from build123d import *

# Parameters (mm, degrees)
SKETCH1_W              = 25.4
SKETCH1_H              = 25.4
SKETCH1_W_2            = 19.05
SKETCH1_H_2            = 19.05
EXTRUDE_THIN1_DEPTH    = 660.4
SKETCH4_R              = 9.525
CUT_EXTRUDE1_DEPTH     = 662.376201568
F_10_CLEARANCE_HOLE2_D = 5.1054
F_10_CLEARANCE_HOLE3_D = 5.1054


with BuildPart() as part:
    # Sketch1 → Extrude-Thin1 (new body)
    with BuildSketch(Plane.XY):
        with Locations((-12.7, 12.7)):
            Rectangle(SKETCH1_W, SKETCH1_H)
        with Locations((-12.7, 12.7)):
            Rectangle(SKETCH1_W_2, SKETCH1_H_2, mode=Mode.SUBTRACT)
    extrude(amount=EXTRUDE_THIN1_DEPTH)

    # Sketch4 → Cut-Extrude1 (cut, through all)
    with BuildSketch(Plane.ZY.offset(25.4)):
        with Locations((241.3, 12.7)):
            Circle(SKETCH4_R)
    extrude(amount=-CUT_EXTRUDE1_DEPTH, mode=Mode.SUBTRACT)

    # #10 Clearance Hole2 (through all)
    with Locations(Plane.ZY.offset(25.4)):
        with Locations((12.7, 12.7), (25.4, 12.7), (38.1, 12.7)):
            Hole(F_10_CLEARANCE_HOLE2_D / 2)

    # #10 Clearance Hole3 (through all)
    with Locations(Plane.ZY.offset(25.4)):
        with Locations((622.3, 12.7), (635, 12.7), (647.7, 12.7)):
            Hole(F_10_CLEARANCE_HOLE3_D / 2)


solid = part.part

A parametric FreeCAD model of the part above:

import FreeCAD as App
import Part
import Sketcher
from FreeCAD import Vector
Q = App.Units.Quantity

doc = App.newDocument("Part")
body = doc.addObject("PartDesign::Body", "Body")

# Sketch on XY plane
sketch1 = body.newObject("Sketcher::SketchObject", "Sketch")
sketch1.AttachmentSupport = (doc.getObject("XY_Plane"), [""])
sketch1.MapMode = "FlatFace"
sketch1.addGeometry([
    Part.LineSegment(Vector(-25.4, 25.4, 0), Vector(-25.4, 0, 0)),  # 0
    Part.LineSegment(Vector(-25.4, 0, 0), Vector(0, 0, 0)),  # 1
    Part.LineSegment(Vector(0, 0, 0), Vector(0, 25.4, 0)),  # 2
    Part.LineSegment(Vector(0, 25.4, 0), Vector(-25.4, 25.4, 0)),  # 3
    Part.LineSegment(Vector(-3.175, 3.175, 0), Vector(-22.225, 3.175, 0)),  # 4
    Part.LineSegment(Vector(-22.225, 3.175, 0), Vector(-22.225, 22.225, 0)),  # 5
    Part.LineSegment(Vector(-22.225, 22.225, 0), Vector(-3.175, 22.225, 0)),  # 6
    Part.LineSegment(Vector(-3.175, 22.225, 0), Vector(-3.175, 3.175, 0)),  # 7
], False)
sketch1.addConstraint([
    Sketcher.Constraint("Coincident", 0, 2, 1, 1),
    Sketcher.Constraint("Coincident", 1, 2, 2, 1),
    Sketcher.Constraint("Coincident", 2, 2, 3, 1),
    Sketcher.Constraint("Coincident", 3, 2, 0, 1),
    Sketcher.Constraint("Coincident", 4, 2, 5, 1),
    Sketcher.Constraint("Coincident", 5, 2, 6, 1),
    Sketcher.Constraint("Coincident", 6, 2, 7, 1),
    Sketcher.Constraint("Coincident", 7, 2, 4, 1),
    Sketcher.Constraint("Vertical", 0),
    Sketcher.Constraint("Horizontal", 1),
    Sketcher.Constraint("Vertical", 2),
    Sketcher.Constraint("Horizontal", 3),
    Sketcher.Constraint("Horizontal", 4),
    Sketcher.Constraint("Vertical", 5),
    Sketcher.Constraint("Horizontal", 6),
    Sketcher.Constraint("Vertical", 7),
    Sketcher.Constraint("Coincident", 1, 2, -1, 1),
    Sketcher.Constraint("Equal", 3, 0),
    Sketcher.Constraint("Equal", 6, 5),
    Sketcher.Constraint("DistanceX", 1, 1, 1, 2, Q("1 in")),
    Sketcher.Constraint("DistanceX", 4, 2, 4, 1, Q("0.75 in")),
    Sketcher.Constraint("DistanceX", 4, 2, -1, 1, Q("0.875 in")),
    Sketcher.Constraint("DistanceY", -1, 1, 4, 2, Q("0.125 in")),
])
pad1 = body.newObject("PartDesign::Pad", "Pad")
pad1.Profile = sketch1
pad1.Length = Q("26 in")

# Sketch on YZ plane
sketch2 = body.newObject("Sketcher::SketchObject", "Sketch001")
sketch2.AttachmentSupport = (doc.getObject("YZ_Plane"), [""])
sketch2.MapMode = "FlatFace"
sketch2.AttachmentOffset = App.Placement(Vector(0, 0, -1 * 25.4), App.Rotation())
sketch2.addGeometry(Part.Circle(Vector(12.7, 241.3, 0), Vector(0, 0, 1), 9.525), False)
sketch2.addConstraint([
    Sketcher.Constraint("Diameter", 0, Q("0.75 in")),
    Sketcher.Constraint("DistanceX", -1, 1, 0, 3, Q("0.5 in")),
    Sketcher.Constraint("DistanceY", -1, 1, 0, 3, Q("9.5 in")),
])
pocket1 = body.newObject("PartDesign::Pocket", "Pocket")
pocket1.Profile = sketch2
pocket1.Type = "ThroughAll"
pocket1.Reversed = True

# Sketch on YZ plane
sketch3 = body.newObject("Sketcher::SketchObject", "Sketch002")
sketch3.AttachmentSupport = (doc.getObject("YZ_Plane"), [""])
sketch3.MapMode = "FlatFace"
sketch3.AttachmentOffset = App.Placement(Vector(0, 0, -1 * 25.4), App.Rotation())
sketch3.addGeometry([
    Part.Circle(Vector(12.7, 12.7, 0), Vector(0, 0, 1), 2.5527),
    Part.Circle(Vector(12.7, 25.4, 0), Vector(0, 0, 1), 2.5527),
    Part.Circle(Vector(12.7, 38.1, 0), Vector(0, 0, 1), 2.5527),
], False)
sketch3.addConstraint([
    Sketcher.Constraint("Equal", 0, 1),
    Sketcher.Constraint("Equal", 1, 2),
    Sketcher.Constraint("Vertical", 0, 3, 1, 3),
    Sketcher.Constraint("Vertical", 1, 3, 2, 3),
    Sketcher.Constraint("Diameter", 0, Q("0.201 in")),
    Sketcher.Constraint("DistanceY", -1, 1, 1, 3, Q("1 in")),
    Sketcher.Constraint("DistanceY", 0, 3, 2, 3, Q("1 in")),
    Sketcher.Constraint("DistanceX", -1, 1, 0, 3, Q("0.5 in")),
    Sketcher.Constraint("DistanceY", -1, 1, 0, 3, Q("0.5 in")),
])
doc.recompute()
hole = body.newObject("PartDesign::Hole", "Hole")
hole.Profile = sketch3
hole.ThreadType = "None"
hole.Diameter = Q("0.201 in")
hole.DepthType = "ThroughAll"
hole.Reversed = True

# Sketch on YZ plane
sketch4 = body.newObject("Sketcher::SketchObject", "Sketch003")
sketch4.AttachmentSupport = (doc.getObject("YZ_Plane"), [""])
sketch4.MapMode = "FlatFace"
sketch4.AttachmentOffset = App.Placement(Vector(0, 0, -1 * 25.4), App.Rotation())
sketch4.addGeometry([
    Part.Circle(Vector(12.7, 622.3, 0), Vector(0, 0, 1), 2.5527),
    Part.Circle(Vector(12.7, 635, 0), Vector(0, 0, 1), 2.5527),
    Part.Circle(Vector(12.7, 647.7, 0), Vector(0, 0, 1), 2.5527),
], False)
sketch4.addConstraint([
    Sketcher.Constraint("Equal", 0, 1),
    Sketcher.Constraint("Equal", 1, 2),
    Sketcher.Constraint("Vertical", 0, 3, 1, 3),
    Sketcher.Constraint("Vertical", 1, 3, 2, 3),
    Sketcher.Constraint("Diameter", 0, Q("0.201 in")),
    Sketcher.Constraint("DistanceY", -1, 1, 1, 3, Q("25 in")),
    Sketcher.Constraint("DistanceY", 0, 3, 2, 3, Q("1 in")),
    Sketcher.Constraint("DistanceX", -1, 1, 0, 3, Q("0.5 in")),
    Sketcher.Constraint("DistanceY", -1, 1, 0, 3, Q("24.5 in")),
])
doc.recompute()
hole2 = body.newObject("PartDesign::Hole", "Hole001")
hole2.Profile = sketch4
hole2.ThreadType = "None"
hole2.Diameter = Q("0.201 in")
hole2.DepthType = "ThroughAll"
hole2.Reversed = True

doc.recompute()
